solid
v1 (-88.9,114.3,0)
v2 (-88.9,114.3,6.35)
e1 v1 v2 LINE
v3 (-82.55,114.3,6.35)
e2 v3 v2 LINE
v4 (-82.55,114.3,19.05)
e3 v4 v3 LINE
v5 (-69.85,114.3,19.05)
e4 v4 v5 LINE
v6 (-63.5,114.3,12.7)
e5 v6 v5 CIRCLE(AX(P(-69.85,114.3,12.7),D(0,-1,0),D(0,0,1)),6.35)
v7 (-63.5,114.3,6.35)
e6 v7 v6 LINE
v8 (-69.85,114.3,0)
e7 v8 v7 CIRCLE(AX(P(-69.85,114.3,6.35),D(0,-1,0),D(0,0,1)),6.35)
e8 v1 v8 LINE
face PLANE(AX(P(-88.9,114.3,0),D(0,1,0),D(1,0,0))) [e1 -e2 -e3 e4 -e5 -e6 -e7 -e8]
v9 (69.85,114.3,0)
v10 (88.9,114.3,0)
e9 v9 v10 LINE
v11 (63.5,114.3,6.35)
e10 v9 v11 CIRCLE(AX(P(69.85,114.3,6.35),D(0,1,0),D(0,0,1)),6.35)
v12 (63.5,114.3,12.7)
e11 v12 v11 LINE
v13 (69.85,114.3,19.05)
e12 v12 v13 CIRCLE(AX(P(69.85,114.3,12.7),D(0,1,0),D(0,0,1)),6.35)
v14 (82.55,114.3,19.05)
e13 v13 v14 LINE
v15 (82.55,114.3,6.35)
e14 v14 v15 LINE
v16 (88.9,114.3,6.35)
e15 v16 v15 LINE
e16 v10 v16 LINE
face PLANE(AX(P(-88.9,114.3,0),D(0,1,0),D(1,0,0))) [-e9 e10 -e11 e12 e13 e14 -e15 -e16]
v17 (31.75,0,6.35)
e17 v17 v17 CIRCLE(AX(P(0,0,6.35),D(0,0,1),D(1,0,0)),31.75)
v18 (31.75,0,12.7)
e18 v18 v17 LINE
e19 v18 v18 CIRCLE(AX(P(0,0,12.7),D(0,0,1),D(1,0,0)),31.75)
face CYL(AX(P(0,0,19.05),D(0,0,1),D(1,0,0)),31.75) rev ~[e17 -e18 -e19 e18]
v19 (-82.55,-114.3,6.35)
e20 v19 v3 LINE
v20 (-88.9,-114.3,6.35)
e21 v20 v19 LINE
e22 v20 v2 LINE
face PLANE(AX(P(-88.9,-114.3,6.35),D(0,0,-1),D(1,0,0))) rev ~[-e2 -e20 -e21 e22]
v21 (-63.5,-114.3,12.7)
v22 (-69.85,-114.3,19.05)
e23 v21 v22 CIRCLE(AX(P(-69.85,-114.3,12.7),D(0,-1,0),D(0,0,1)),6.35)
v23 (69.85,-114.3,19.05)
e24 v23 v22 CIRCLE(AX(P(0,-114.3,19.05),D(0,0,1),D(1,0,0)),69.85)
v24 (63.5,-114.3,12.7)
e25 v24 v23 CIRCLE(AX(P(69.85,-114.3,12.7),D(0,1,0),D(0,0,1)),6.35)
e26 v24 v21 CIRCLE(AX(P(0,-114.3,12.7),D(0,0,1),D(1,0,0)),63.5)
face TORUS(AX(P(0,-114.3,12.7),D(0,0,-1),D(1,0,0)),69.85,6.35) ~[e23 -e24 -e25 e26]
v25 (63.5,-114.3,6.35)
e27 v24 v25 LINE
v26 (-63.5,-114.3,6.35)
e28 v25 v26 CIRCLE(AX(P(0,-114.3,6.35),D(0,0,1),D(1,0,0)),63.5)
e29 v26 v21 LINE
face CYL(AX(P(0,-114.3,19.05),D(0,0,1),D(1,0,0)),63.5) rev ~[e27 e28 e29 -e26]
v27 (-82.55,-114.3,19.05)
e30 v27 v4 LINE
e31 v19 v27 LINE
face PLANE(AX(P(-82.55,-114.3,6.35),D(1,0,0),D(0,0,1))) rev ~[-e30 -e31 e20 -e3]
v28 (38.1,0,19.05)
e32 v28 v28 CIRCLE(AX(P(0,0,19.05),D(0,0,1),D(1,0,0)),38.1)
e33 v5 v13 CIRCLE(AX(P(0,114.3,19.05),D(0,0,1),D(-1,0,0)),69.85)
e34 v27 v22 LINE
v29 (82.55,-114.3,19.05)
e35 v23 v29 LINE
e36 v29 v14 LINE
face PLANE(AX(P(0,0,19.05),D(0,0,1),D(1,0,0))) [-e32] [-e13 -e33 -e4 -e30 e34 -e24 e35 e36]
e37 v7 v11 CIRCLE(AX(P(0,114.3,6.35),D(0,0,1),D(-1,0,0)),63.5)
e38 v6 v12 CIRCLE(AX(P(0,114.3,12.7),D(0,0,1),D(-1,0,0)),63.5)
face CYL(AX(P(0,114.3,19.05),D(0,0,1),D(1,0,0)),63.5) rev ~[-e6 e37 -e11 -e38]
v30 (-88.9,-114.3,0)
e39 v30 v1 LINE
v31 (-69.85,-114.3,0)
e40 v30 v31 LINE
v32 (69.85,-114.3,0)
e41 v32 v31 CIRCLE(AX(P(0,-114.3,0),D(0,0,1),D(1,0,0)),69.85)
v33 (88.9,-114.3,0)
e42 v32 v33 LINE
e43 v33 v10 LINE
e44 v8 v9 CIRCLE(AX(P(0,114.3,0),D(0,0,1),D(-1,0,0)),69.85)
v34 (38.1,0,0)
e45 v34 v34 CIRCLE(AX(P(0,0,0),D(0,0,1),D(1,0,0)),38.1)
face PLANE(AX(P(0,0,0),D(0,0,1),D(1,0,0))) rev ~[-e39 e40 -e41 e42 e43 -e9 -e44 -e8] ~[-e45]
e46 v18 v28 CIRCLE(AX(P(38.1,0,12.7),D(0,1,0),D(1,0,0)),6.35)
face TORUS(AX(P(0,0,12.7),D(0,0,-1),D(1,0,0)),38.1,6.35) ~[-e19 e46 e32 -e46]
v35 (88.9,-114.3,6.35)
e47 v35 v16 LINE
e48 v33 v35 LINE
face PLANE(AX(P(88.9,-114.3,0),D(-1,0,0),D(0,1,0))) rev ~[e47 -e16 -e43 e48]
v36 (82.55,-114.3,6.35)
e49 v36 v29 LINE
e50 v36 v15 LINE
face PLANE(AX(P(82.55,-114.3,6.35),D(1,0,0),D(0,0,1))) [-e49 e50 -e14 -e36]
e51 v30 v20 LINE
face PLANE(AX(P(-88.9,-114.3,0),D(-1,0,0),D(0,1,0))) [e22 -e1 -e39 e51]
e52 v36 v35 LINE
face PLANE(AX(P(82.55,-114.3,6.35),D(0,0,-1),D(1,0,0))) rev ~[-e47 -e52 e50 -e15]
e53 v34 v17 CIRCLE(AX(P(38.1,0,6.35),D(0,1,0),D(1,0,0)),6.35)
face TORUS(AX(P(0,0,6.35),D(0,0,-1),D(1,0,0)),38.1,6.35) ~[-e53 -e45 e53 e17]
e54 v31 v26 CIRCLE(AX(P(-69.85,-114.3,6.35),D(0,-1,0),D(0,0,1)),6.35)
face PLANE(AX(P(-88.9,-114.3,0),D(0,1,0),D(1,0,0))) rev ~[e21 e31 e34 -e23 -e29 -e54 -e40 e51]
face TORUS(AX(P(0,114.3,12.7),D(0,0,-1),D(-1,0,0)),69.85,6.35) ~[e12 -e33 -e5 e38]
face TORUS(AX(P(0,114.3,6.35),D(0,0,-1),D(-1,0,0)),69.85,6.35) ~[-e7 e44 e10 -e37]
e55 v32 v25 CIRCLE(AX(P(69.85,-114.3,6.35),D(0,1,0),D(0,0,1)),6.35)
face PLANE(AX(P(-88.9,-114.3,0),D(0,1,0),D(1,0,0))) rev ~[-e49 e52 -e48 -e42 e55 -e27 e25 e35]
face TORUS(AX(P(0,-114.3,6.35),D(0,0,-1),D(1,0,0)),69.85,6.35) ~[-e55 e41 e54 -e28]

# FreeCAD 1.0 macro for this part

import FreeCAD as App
import Part
import Sketcher

V = App.Vector
Q = App.Units.Quantity


def edges_at(feature, points):
    """Names of the edges that pass closest to the given points."""
    edges = feature.Shape.Edges
    near = lambda p: min(range(len(edges)), key=lambda i: edges[i].distToShape(Part.Vertex(*p))[0])
    return sorted({f"Edge{near(p) + 1}" for p in points})

doc = App.newDocument("Part")
body = doc.addObject("PartDesign::Body", "Body")

sketch1 = doc.addObject("Sketcher::SketchObject", "Sketch")
body.addObject(sketch1)
sketch1.AttachmentSupport = (doc.XY_Plane, [""])
sketch1.MapMode = "FlatFace"
sketch1.addGeometry(Part.LineSegment(V(-88.9, 114.3, 0), V(-88.9, -114.3, 0)), False)
sketch1.addGeometry(Part.LineSegment(V(-88.9, -114.3, 0), V(88.9, -114.3, 0)), False)
sketch1.addGeometry(Part.LineSegment(V(88.9, -114.3, 0), V(88.9, 114.3, 0)), False)
sketch1.addGeometry(Part.LineSegment(V(88.9, 114.3, 0), V(-88.9, 114.3, 0)), False)
sketch1.addConstraint(Sketcher.Constraint("Coincident", 0, 2, 1, 1))
sketch1.addConstraint(Sketcher.Constraint("Coincident", 1, 2, 2, 1))
sketch1.addConstraint(Sketcher.Constraint("Coincident", 2, 2, 3, 1))
sketch1.addConstraint(Sketcher.Constraint("Coincident", 3, 2, 0, 1))
sketch1.addConstraint(Sketcher.Constraint("Vertical", 0))
sketch1.addConstraint(Sketcher.Constraint("Horizontal", 1))
sketch1.addConstraint(Sketcher.Constraint("Vertical", 2))
sketch1.addConstraint(Sketcher.Constraint("Horizontal", 3))
sketch1.addConstraint(Sketcher.Constraint("Symmetric", 0, 2, 2, 2, -1, 1))
sketch1.addConstraint(Sketcher.Constraint("DistanceX", 1, 1, 1, 2, Q("7 in")))
sketch1.addConstraint(Sketcher.Constraint("DistanceY", 0, 2, 0, 1, Q("9 in")))
pad1 = doc.addObject("PartDesign::Pad", "Pad")
body.addObject(pad1)
pad1.Profile = sketch1
pad1.Length = Q("0.75 in")

sketch2 = doc.addObject("Sketcher::SketchObject", "Sketch001")
body.addObject(sketch2)
sketch2.AttachmentSupport = (doc.XZ_Plane, [""])
sketch2.MapMode = "FlatFace"
sketch2.AttachmentOffset = App.Placement(V(0, 0, 4.5 * 25.4), App.Rotation())
sketch2.addGeometry(Part.LineSegment(V(82.55, 19.05, 0), V(82.55, 6.35, 0)), False)
sketch2.addGeometry(Part.LineSegment(V(82.55, 6.35, 0), V(88.9, 6.35, 0)), False)
sketch2.addGeometry(Part.LineSegment(V(88.9, 6.35, 0), V(88.9, 19.05, 0)), False)
sketch2.addGeometry(Part.LineSegment(V(88.9, 19.05, 0), V(82.55, 19.05, 0)), False)
sketch2.addGeometry(Part.LineSegment(V(-88.9, 19.05, 0), V(-88.9, 6.35, 0)), False)
sketch2.addGeometry(Part.LineSegment(V(-88.9, 6.35, 0), V(-82.55, 6.35, 0)), False)
sketch2.addGeometry(Part.LineSegment(V(-82.55, 6.35, 0), V(-82.55, 19.05, 0)), False)
sketch2.addGeometry(Part.LineSegment(V(-82.55, 19.05, 0), V(-88.9, 19.05, 0)), False)
sketch2.addConstraint(Sketcher.Constraint("Coincident", 0, 2, 1, 1))
sketch2.addConstraint(Sketcher.Constraint("Coincident", 1, 2, 2, 1))
sketch2.addConstraint(Sketcher.Constraint("Coincident", 2, 2, 3, 1))
sketch2.addConstraint(Sketcher.Constraint("Coincident", 3, 2, 0, 1))
sketch2.addConstraint(Sketcher.Constraint("Coincident", 4, 2, 5, 1))
sketch2.addConstraint(Sketcher.Constraint("Coincident", 5, 2, 6, 1))
sketch2.addConstraint(Sketcher.Constraint("Coincident", 6, 2, 7, 1))
sketch2.addConstraint(Sketcher.Constraint("Coincident", 7, 2, 4, 1))
sketch2.addConstraint(Sketcher.Constraint("Vertical", 0))
sketch2.addConstraint(Sketcher.Constraint("Horizontal", 1))
sketch2.addConstraint(Sketcher.Constraint("Vertical", 2))
sketch2.addConstraint(Sketcher.Constraint("Horizontal", 3))
sketch2.addConstraint(Sketcher.Constraint("Vertical", 4))
sketch2.addConstraint(Sketcher.Constraint("Horizontal", 5))
sketch2.addConstraint(Sketcher.Constraint("Vertical", 6))
sketch2.addConstraint(Sketcher.Constraint("Horizontal", 7))
sketch2.addConstraint(Sketcher.Constraint("Symmetric", 1, 2, 4, 2, -2))
sketch2.addConstraint(Sketcher.Constraint("Symmetric", 3, 2, 6, 2, -2))
sketch2.addConstraint(Sketcher.Constraint("DistanceY", 0, 2, 0, 1, Q("0.5 in")))
sketch2.addConstraint(Sketcher.Constraint("DistanceX", 4, 2, 1, 2, Q("7 in")))
sketch2.addConstraint(Sketcher.Constraint("DistanceX", 1, 1, 1, 2, Q("0.25 in")))
sketch2.addConstraint(Sketcher.Constraint("DistanceY", -1, 1, 0, 2, Q("0.25 in")))
pocket1 = doc.addObject("PartDesign::Pocket", "Pocket")
body.addObject(pocket1)
pocket1.Profile = sketch2
pocket1.Length = Q("10 in")

sketch3 = doc.addObject("Sketcher::SketchObject", "Sketch002")
body.addObject(sketch3)
sketch3.AttachmentSupport = (doc.XY_Plane, [""])
sketch3.MapMode = "FlatFace"
sketch3.AttachmentOffset = App.Placement(V(0, 0, 0.75 * 25.4), App.Rotation())
sketch3.addGeometry(Part.Circle(V(0, -114.3, 0), V(0, 0, 1), 63.5), False)
sketch3.addGeometry(Part.Circle(V(0, 114.3, 0), V(0, 0, 1), 63.5), False)
sketch3.addGeometry(Part.Circle(V(0, 0, 0), V(0, 0, 1), 31.75), False)
sketch3.addConstraint(Sketcher.Constraint("Coincident", 2, 3, -1, 1))
sketch3.addConstraint(Sketcher.Constraint("Equal", 0, 1))
sketch3.addConstraint(Sketcher.Constraint("Symmetric", 0, 3, 1, 3, -1, 1))
sketch3.addConstraint(Sketcher.Constraint("PointOnObject", 0, 3, -2))
sketch3.addConstraint(Sketcher.Constraint("Diameter", 0, Q("5 in")))
sketch3.addConstraint(Sketcher.Constraint("Diameter", 2, Q("2.5 in")))
sketch3.addConstraint(Sketcher.Constraint("DistanceY", 0, 3, 1, 3, Q("9 in")))
pocket2 = doc.addObject("PartDesign::Pocket", "Pocket001")
body.addObject(pocket2)
pocket2.Profile = sketch3
pocket2.Length = Q("1 in")
doc.recompute()

fillet = doc.addObject("PartDesign::Fillet", "Fillet")
body.addObject(fillet)
fillet.Base = (pocket2, edges_at(pocket2, [
    (0, 50.8, 0),
    (-31.75, 0, 0),
    (0, -50.8, 0),
    (0, 50.8, 19.05),
    (-31.75, 0, 19.05),
    (0, -50.8, 19.05),
]))
fillet.Radius = Q("0.25 in")

doc.recompute()
